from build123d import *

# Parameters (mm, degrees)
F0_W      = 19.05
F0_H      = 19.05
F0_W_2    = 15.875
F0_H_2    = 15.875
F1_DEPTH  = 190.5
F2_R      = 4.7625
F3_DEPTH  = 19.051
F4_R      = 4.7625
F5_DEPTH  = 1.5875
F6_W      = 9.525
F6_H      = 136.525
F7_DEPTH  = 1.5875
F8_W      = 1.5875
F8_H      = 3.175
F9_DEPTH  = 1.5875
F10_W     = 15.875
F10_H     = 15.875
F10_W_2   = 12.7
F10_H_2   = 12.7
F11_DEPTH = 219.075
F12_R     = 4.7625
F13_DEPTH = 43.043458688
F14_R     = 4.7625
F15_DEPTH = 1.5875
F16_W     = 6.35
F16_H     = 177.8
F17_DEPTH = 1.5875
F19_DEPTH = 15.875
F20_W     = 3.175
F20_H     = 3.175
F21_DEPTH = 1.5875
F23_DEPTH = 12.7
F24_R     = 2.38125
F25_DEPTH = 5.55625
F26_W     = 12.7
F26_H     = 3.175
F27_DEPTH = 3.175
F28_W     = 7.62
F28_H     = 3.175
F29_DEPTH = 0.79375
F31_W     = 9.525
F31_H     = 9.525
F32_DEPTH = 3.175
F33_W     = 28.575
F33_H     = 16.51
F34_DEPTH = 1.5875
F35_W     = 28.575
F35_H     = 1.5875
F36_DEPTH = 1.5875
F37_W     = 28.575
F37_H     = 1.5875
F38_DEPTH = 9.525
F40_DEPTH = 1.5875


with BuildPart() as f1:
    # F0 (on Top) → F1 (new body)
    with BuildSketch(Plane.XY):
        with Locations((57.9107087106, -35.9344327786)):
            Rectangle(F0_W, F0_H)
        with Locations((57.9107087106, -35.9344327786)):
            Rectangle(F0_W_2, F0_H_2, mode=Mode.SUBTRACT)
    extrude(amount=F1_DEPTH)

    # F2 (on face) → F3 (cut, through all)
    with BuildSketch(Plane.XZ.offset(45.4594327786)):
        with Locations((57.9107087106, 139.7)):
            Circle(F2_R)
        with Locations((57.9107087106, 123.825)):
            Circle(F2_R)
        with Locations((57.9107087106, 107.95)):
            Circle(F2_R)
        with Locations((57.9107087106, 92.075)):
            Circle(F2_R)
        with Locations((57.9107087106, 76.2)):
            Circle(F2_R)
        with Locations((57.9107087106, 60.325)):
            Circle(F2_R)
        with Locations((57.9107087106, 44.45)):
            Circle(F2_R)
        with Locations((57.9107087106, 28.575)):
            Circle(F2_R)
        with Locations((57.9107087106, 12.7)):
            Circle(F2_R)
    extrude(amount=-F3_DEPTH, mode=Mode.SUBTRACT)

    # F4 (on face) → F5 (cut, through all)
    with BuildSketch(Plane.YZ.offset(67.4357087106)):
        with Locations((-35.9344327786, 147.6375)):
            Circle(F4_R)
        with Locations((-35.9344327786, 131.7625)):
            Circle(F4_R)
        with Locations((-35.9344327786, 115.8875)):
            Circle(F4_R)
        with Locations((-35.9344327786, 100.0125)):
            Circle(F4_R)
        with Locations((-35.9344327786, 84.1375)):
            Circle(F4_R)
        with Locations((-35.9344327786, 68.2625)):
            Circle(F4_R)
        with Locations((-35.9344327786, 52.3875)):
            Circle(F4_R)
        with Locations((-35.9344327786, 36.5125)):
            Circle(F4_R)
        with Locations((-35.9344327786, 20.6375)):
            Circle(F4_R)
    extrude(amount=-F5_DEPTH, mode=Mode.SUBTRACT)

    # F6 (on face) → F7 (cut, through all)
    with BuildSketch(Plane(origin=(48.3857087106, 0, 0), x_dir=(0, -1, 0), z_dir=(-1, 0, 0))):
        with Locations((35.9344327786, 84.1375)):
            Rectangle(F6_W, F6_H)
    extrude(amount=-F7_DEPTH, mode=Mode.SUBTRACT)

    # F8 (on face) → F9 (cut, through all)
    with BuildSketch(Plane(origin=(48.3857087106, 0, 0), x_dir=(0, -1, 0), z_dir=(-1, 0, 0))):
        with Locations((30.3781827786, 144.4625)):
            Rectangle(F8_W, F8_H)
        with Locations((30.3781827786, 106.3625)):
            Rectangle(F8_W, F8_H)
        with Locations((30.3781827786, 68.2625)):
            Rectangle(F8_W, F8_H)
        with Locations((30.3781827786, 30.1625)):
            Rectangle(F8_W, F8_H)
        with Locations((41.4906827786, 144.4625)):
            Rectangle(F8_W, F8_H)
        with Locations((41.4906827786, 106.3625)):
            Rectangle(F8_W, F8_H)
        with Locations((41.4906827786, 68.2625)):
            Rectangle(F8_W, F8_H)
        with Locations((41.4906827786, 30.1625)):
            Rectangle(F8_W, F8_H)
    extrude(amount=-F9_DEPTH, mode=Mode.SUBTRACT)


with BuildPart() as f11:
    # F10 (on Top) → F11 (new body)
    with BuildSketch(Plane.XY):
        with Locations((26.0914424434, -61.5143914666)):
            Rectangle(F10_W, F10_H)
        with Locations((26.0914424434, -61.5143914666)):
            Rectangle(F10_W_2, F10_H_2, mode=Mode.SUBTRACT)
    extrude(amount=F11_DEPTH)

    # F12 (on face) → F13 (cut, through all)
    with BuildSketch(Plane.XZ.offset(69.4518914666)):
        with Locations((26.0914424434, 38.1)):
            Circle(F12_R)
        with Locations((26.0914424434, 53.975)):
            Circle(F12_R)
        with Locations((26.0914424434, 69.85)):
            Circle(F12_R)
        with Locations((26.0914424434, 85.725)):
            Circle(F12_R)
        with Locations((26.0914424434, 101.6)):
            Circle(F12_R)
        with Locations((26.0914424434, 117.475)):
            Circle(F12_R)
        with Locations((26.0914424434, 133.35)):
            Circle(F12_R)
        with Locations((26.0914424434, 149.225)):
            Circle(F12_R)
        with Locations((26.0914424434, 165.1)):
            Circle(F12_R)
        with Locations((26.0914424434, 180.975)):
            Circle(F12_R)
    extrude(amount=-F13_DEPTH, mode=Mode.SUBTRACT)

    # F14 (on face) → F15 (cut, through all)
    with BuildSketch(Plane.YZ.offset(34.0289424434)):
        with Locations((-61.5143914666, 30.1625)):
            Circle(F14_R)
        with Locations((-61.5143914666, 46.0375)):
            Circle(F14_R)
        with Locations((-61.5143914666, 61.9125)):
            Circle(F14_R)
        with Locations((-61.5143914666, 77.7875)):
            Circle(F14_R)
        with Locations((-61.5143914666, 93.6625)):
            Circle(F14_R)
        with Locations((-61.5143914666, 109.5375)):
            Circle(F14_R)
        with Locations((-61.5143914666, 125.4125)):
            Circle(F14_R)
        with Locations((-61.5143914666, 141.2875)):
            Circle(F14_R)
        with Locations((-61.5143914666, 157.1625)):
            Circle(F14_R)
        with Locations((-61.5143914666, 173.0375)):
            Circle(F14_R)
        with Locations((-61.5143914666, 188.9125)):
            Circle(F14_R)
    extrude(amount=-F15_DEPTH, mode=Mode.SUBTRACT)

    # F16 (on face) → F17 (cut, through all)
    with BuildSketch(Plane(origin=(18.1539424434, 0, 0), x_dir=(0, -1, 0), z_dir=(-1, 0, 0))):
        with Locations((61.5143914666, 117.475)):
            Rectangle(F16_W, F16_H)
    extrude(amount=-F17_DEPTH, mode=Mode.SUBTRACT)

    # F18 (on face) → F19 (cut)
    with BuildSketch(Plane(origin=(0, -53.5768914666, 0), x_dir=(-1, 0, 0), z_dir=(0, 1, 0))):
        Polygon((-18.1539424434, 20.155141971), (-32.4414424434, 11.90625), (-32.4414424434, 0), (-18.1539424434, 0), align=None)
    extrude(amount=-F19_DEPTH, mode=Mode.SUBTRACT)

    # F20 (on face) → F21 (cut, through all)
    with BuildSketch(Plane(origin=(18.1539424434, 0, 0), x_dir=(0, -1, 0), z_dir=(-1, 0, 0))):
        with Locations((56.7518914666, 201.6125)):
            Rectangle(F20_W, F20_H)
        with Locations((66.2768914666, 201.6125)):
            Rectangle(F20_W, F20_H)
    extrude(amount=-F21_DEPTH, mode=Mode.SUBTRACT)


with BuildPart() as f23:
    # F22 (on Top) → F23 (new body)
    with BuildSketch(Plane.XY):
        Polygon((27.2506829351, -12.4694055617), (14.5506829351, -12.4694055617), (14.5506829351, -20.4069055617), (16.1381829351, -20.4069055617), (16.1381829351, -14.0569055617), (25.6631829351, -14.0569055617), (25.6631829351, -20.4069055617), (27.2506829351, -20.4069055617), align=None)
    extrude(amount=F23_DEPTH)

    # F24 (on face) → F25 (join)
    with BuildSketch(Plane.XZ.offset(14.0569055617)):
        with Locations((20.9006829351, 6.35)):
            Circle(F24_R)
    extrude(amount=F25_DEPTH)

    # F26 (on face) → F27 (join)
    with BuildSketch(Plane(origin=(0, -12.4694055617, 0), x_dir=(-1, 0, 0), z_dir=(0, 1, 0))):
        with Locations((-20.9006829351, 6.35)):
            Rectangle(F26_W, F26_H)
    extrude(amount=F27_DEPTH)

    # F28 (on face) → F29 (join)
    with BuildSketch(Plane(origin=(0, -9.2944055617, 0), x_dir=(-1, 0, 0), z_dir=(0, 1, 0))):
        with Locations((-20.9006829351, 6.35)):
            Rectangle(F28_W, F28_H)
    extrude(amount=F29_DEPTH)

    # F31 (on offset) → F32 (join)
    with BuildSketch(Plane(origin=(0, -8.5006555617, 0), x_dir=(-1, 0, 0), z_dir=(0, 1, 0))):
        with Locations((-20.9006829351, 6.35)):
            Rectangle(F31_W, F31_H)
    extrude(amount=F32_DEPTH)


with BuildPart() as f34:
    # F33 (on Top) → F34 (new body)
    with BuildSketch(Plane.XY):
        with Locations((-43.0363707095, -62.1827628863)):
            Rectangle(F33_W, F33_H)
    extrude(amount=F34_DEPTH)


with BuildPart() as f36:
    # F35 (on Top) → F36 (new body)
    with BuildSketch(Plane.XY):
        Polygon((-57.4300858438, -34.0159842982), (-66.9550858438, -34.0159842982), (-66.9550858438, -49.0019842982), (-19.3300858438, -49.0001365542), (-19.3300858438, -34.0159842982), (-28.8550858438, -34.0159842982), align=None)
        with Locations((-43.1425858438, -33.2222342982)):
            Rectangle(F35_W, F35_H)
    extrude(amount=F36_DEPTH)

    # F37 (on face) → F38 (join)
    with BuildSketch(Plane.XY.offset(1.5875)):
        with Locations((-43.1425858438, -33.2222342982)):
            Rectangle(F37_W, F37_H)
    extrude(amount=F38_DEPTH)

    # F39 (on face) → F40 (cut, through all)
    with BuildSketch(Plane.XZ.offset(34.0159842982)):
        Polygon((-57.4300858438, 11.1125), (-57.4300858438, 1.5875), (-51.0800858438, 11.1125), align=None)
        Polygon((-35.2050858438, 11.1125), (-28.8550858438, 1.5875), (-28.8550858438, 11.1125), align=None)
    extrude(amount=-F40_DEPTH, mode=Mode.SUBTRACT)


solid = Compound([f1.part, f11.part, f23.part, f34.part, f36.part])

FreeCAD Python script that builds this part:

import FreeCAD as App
import Part
import Sketcher
Q = App.Units.Quantity


def add_polygon(sketch, points):
    """Adds a closed chain of lines whose ends are joined by coincident constraints."""
    first, n = sketch.GeometryCount, len(points)
    for a, b in zip(points, points[1:] + points[:1]):
        sketch.addGeometry(Part.LineSegment(App.Vector(*a, 0), App.Vector(*b, 0)), False)
    for i in range(n):
        sketch.addConstraint(Sketcher.Constraint("Coincident", first + i, 2, first + (i + 1) % n, 1))

doc = App.newDocument("Part")
body = doc.addObject("PartDesign::Body", "Body")

sketch1 = body.newObject("Sketcher::SketchObject", "Sketch")
sketch1.AttachmentSupport = (doc.getObject("XY_Plane"), [""])
sketch1.MapMode = "FlatFace"
add_polygon(sketch1, [(48, -26), (48, -45), (67, -45), (67, -26)])
add_polygon(sketch1, [(66, -44), (50, -44), (50, -28), (66, -28)])
sketch1.addConstraint([
    Sketcher.Constraint("Vertical", 0),
    Sketcher.Constraint("Horizontal", 1),
    Sketcher.Constraint("Vertical", 2),
    Sketcher.Constraint("Horizontal", 3),
    Sketcher.Constraint("Horizontal", 4),
    Sketcher.Constraint("Vertical", 5),
    Sketcher.Constraint("Horizontal", 6),
    Sketcher.Constraint("Vertical", 7),
    Sketcher.Constraint("Equal", 3, 0),
    Sketcher.Constraint("Equal", 6, 5),
    Sketcher.Constraint("DistanceX", 1, 1, 1, 2, Q("0.75 in")),
    Sketcher.Constraint("DistanceX", 4, 2, 4, 1, Q("0.625 in")),
    Sketcher.Constraint("DistanceX", 0, 2, 4, 2, Q("0.0625 in")),
    Sketcher.Constraint("DistanceY", 0, 2, 4, 2, Q("0.0625 in")),
    Sketcher.Constraint("DistanceX", -1, 1, 0, 2, 48.385709),
    Sketcher.Constraint("DistanceY", 0, 2, -1, 1, 45.459433),
])
pad1 = body.newObject("PartDesign::Pad", "Pad")
pad1.Profile = sketch1
pad1.Length = Q("7.5 in")

sketch2 = body.newObject("Sketcher::SketchObject", "Sketch001")
sketch2.AttachmentSupport = (doc.getObject("XZ_Plane"), [""])
sketch2.MapMode = "FlatFace"
sketch2.AttachmentOffset = App.Placement(App.Vector(0, 0, 45.459433), App.Rotation())
sketch2.addGeometry([
    Part.Circle(App.Vector(57.9, 139.7, 0), App.Vector(0, 0, 1), 4.8),
    Part.Circle(App.Vector(57.9, 123.8, 0), App.Vector(0, 0, 1), 4.8),
    Part.Circle(App.Vector(57.9, 108, 0), App.Vector(0, 0, 1), 4.8),
    Part.Circle(App.Vector(57.9, 92.1, 0), App.Vector(0, 0, 1), 4.8),
    Part.Circle(App.Vector(57.9, 76.2, 0), App.Vector(0, 0, 1), 4.8),
    Part.Circle(App.Vector(57.9, 60.3, 0), App.Vector(0, 0, 1), 4.8),
    Part.Circle(App.Vector(57.9, 44.5, 0), App.Vector(0, 0, 1), 4.8),
    Part.Circle(App.Vector(57.9, 28.6, 0), App.Vector(0, 0, 1), 4.8),
    Part.Circle(App.Vector(57.9, 12.7, 0), App.Vector(0, 0, 1), 4.8),
], False)
sketch2.addConstraint([
    Sketcher.Constraint("Equal", 0, 1),
    Sketcher.Constraint("Equal", 1, 2),
    Sketcher.Constraint("Equal", 2, 3),
    Sketcher.Constraint("Equal", 3, 4),
    Sketcher.Constraint("Equal", 4, 5),
    Sketcher.Constraint("Equal", 5, 6),
    Sketcher.Constraint("Equal", 6, 7),
    Sketcher.Constraint("Equal", 7, 8),
    Sketcher.Constraint("Vertical", 0, 3, 1, 3),
    Sketcher.Constraint("Vertical", 1, 3, 2, 3),
    Sketcher.Constraint("Vertical", 2, 3, 3, 3),
    Sketcher.Constraint("Vertical", 3, 3, 4, 3),
    Sketcher.Constraint("Vertical", 4, 3, 5, 3),
    Sketcher.Constraint("Vertical", 5, 3, 6, 3),
    Sketcher.Constraint("Vertical", 6, 3, 7, 3),
    Sketcher.Constraint("Vertical", 7, 3, 8, 3),
    Sketcher.Constraint("Diameter", 0, Q("0.375 in")),
    Sketcher.Constraint("DistanceY", -1, 1, 4, 3, Q("3 in")),
    Sketcher.Constraint("DistanceY", -1, 1, 0, 3, Q("5.5 in")),
    Sketcher.Constraint("DistanceY", -1, 1, 8, 3, Q("0.5 in")),
    Sketcher.Constraint("DistanceY", 5, 3, 1, 3, Q("2.5 in")),
    Sketcher.Constraint("DistanceY", 6, 3, 2, 3, Q("2.5 in")),
    Sketcher.Constraint("DistanceY", 7, 3, 3, 3, Q("2.5 in")),
    Sketcher.Constraint("DistanceY", -1, 1, 2, 3, Q("4.25 in")),
    Sketcher.Constraint("DistanceY", 3, 3, 1, 3, Q("1.25 in")),
    Sketcher.Constraint("DistanceY", -1, 1, 1, 3, Q("4.875 in")),
    Sketcher.Constraint("DistanceX", -1, 1, 0, 3, 57.910709),
])
pocket1 = body.newObject("PartDesign::Pocket", "Pocket")
pocket1.Profile = sketch2
pocket1.Type = "ThroughAll"

sketch3 = body.newObject("Sketcher::SketchObject", "Sketch002")
sketch3.AttachmentSupport = (doc.getObject("YZ_Plane"), [""])
sketch3.MapMode = "FlatFace"
sketch3.AttachmentOffset = App.Placement(App.Vector(0, 0, 67.435709), App.Rotation())
sketch3.addGeometry([
    Part.Circle(App.Vector(-35.9, 147.6, 0), App.Vector(0, 0, 1), 4.8),
    Part.Circle(App.Vector(-35.9, 131.8, 0), App.Vector(0, 0, 1), 4.8),
    Part.Circle(App.Vector(-35.9, 115.9, 0), App.Vector(0, 0, 1), 4.8),
    Part.Circle(App.Vector(-35.9, 100, 0), App.Vector(0, 0, 1), 4.8),
    Part.Circle(App.Vector(-35.9, 84.1, 0), App.Vector(0, 0, 1), 4.8),
    Part.Circle(App.Vector(-35.9, 68.3, 0), App.Vector(0, 0, 1), 4.8),
    Part.Circle(App.Vector(-35.9, 52.4, 0), App.Vector(0, 0, 1), 4.8),
    Part.Circle(App.Vector(-35.9, 36.5, 0), App.Vector(0, 0, 1), 4.8),
    Part.Circle(App.Vector(-35.9, 20.6, 0), App.Vector(0, 0, 1), 4.8),
], False)
sketch3.addConstraint([
    Sketcher.Constraint("Equal", 0, 1),
    Sketcher.Constraint("Equal", 1, 2),
    Sketcher.Constraint("Equal", 2, 3),
    Sketcher.Constraint("Equal", 3, 4),
    Sketcher.Constraint("Equal", 4, 5),
    Sketcher.Constraint("Equal", 5, 6),
    Sketcher.Constraint("Equal", 6, 7),
    Sketcher.Constraint("Equal", 7, 8),
    Sketcher.Constraint("Vertical", 0, 3, 1, 3),
    Sketcher.Constraint("Vertical", 1, 3, 2, 3),
    Sketcher.Constraint("Vertical", 2, 3, 3, 3),
    Sketcher.Constraint("Vertical", 3, 3, 4, 3),
    Sketcher.Constraint("Vertical", 4, 3, 5, 3),
    Sketcher.Constraint("Vertical", 5, 3, 6, 3),
    Sketcher.Constraint("Vertical", 6, 3, 7, 3),
    Sketcher.Constraint("Vertical", 7, 3, 8, 3),
    Sketcher.Constraint("Diameter", 0, Q("0.375 in")),
    Sketcher.Constraint("DistanceY", 4, 3, 0, 3, Q("2.5 in")),
    Sketcher.Constraint("DistanceY", 5, 3, 1, 3, Q("2.5 in")),
    Sketcher.Constraint("DistanceY", 6, 3, 2, 3, Q("2.5 in")),
    Sketcher.Constraint("DistanceY", 7, 3, 3, 3, Q("2.5 in")),
    Sketcher.Constraint("DistanceY", 8, 3, 4, 3, Q("2.5 in")),
    Sketcher.Constraint("DistanceY", 2, 3, 0, 3, Q("1.25 in")),
    Sketcher.Constraint("DistanceY", 3, 3, 1, 3, Q("1.25 in")),
    Sketcher.Constraint("DistanceY", -1, 1, 0, 3, Q("5.8125 in")),
    Sketcher.Constraint("DistanceY", -1, 1, 1, 3, Q("5.1875 in")),
    Sketcher.Constraint("DistanceX", 0, 3, -1, 1, 35.934433),
])
pocket2 = body.newObject("PartDesign::Pocket", "Pocket001")
pocket2.Profile = sketch3
pocket2.Length = Q("0.0625 in")

sketch4 = body.newObject("Sketcher::SketchObject", "Sketch003")
sketch4.AttachmentSupport = (doc.getObject("YZ_Plane"), [""])
sketch4.MapMode = "FlatFace"
sketch4.AttachmentOffset = App.Placement(App.Vector(0, 0, 48.385709), App.Rotation())
add_polygon(sketch4, [(-31, 152), (-31, 16), (-41, 16), (-41, 152)])
sketch4.addConstraint([
    Sketcher.Constraint("Vertical", 0),
    Sketcher.Constraint("Horizontal", 1),
    Sketcher.Constraint("Vertical", 2),
    Sketcher.Constraint("Horizontal", 3),
    Sketcher.Constraint("DistanceY", -1, 1, 2, 2, Q("6 in")),
    Sketcher.Constraint("DistanceX", 1, 2, 1, 1, Q("0.375 in")),
    Sketcher.Constraint("DistanceY", 0, 2, 0, 1, Q("5.375 in")),
    Sketcher.Constraint("DistanceX", 0, 2, -1, 1, 31.171933),
])
pocket3 = body.newObject("PartDesign::Pocket", "Pocket002")
pocket3.Profile = sketch4
pocket3.Length = Q("0.0625 in")
pocket3.Reversed = True

sketch5 = body.newObject("Sketcher::SketchObject", "Sketch004")
sketch5.AttachmentSupport = (doc.getObject("YZ_Plane"), [""])
sketch5.MapMode = "FlatFace"
sketch5.AttachmentOffset = App.Placement(App.Vector(0, 0, 48.385709), App.Rotation())
add_polygon(sketch5, [(-29.6, 146.1), (-29.6, 142.9), (-31.2, 142.9), (-31.2, 146.1)])
add_polygon(sketch5, [(-29.6, 108), (-29.6, 104.8), (-31.2, 104.8), (-31.2, 108)])
add_polygon(sketch5, [(-29.6, 69.8), (-29.6, 66.7), (-31.2, 66.7), (-31.2, 69.8)])
add_polygon(sketch5, [(-29.6, 31.8), (-29.6, 28.6), (-31.2, 28.6), (-31.2, 31.8)])
add_polygon(sketch5, [(-40.7, 146.1), (-40.7, 142.9), (-42.3, 142.9), (-42.3, 146.1)])
add_polygon(sketch5, [(-40.7, 108), (-40.7, 104.8), (-42.3, 104.8), (-42.3, 108)])
add_polygon(sketch5, [(-40.7, 69.8), (-40.7, 66.7), (-42.3, 66.7), (-42.3, 69.8)])
add_polygon(sketch5, [(-40.7, 31.8), (-40.7, 28.6), (-42.3, 28.6), (-42.3, 31.8)])
sketch5.addConstraint([
    Sketcher.Constraint("Vertical", 0),
    Sketcher.Constraint("Horizontal", 1),
    Sketcher.Constraint("Vertical", 2),
    Sketcher.Constraint("Horizontal", 3),
    Sketcher.Constraint("Vertical", 4),
    Sketcher.Constraint("Horizontal", 5),
    Sketcher.Constraint("Vertical", 6),
    Sketcher.Constraint("Horizontal", 7),
    Sketcher.Constraint("Vertical", 8),
    Sketcher.Constraint("Horizontal", 9),
    Sketcher.Constraint("Vertical", 10),
    Sketcher.Constraint("Horizontal", 11),
    Sketcher.Constraint("Vertical", 12),
    Sketcher.Constraint("Horizontal", 13),
    Sketcher.Constraint("Vertical", 14),
    Sketcher.Constraint("Horizontal", 15),
    Sketcher.Constraint("Vertical", 16),
    Sketcher.Constraint("Horizontal", 17),
    Sketcher.Constraint("Vertical", 18),
    Sketcher.Constraint("Horizontal", 19),
    Sketcher.Constraint("Vertical", 20),
    Sketcher.Constraint("Horizontal", 21),
    Sketcher.Constraint("Vertical", 22),
    Sketcher.Constraint("Horizontal", 23),
    Sketcher.Constraint("Vertical", 24),
    Sketcher.Constraint("Horizontal", 25),
    Sketcher.Constraint("Vertical", 26),
    Sketcher.Constraint("Horizontal", 27),
    Sketcher.Constraint("Vertical", 28),
    Sketcher.Constraint("Horizontal", 29),
    Sketcher.Constraint("Vertical", 30),
    Sketcher.Constraint("Horizontal", 31),
    Sketcher.Constraint("Horizontal", 1, 2, 16, 2),
    Sketcher.Constraint("Horizontal", 3, 2, 18, 2),
    Sketcher.Constraint("Horizontal", 5, 2, 20, 2),
    Sketcher.Constraint("Horizontal", 7, 2, 22, 2),
    Sketcher.Constraint("Horizontal", 9, 2, 24, 2),
    Sketcher.Constraint("Horizontal", 11, 2, 26, 2),
    Sketcher.Constraint("Horizontal", 13, 2, 28, 2),
    Sketcher.Constraint("Horizontal", 15, 2, 30, 2),
    Sketcher.Constraint("Vertical", 3, 2, 4, 2),
    Sketcher.Constraint("Vertical", 2, 2, 5, 2),
    Sketcher.Constraint("Vertical", 7, 2, 8, 2),
    Sketcher.Constraint("Vertical", 6, 2, 9, 2),
    Sketcher.Constraint("Vertical", 11, 2, 12, 2),
    Sketcher.Constraint("Vertical", 10, 2, 13, 2),
    Sketcher.Constraint("Vertical", 19, 2, 20, 2),
    Sketcher.Constraint("Vertical", 18, 2, 21, 2),
    Sketcher.Constraint("Vertical", 23, 2, 24, 2),
    Sketcher.Constraint("Vertical", 22, 2, 25, 2),
    Sketcher.Constraint("Vertical", 27, 2, 28, 2),
    Sketcher.Constraint("Vertical", 26, 2, 29, 2),
    Sketcher.Constraint("Equal", 15, 17),
    Sketcher.Constraint("Equal", 2, 4),
    Sketcher.Constraint("Equal", 6, 8),
    Sketcher.Constraint("Equal", 10, 12),
    Sketcher.Constraint("DistanceY", 8, 2, 0, 2, Q("3 in")),
    Sketcher.Constraint("DistanceY", 12, 2, 4, 2, Q("3 in")),
    Sketcher.Constraint("DistanceY", 4, 2, 0, 2, Q("1.5 in")),
    Sketcher.Constraint("DistanceX", 17, 2, 0, 2, Q("0.5 in")),
    Sketcher.Constraint("DistanceX", 1, 2, 1, 1, Q("0.0625 in")),
    Sketcher.Constraint("DistanceY", 0, 2, 0, 1, Q("0.125 in")),
    Sketcher.Constraint("DistanceY", -1, 1, 2, 2, Q("5.75 in")),
    Sketcher.Constraint("DistanceX", 0, 2, -1, 1, 29.584433),
])
pocket4 = body.newObject("PartDesign::Pocket", "Pocket003")
pocket4.Profile = sketch5
pocket4.Length = Q("0.0625 in")
pocket4.Reversed = True
body2 = doc.addObject("PartDesign::Body", "Body001")

sketch6 = body2.newObject("Sketcher::SketchObject", "Sketch005")
sketch6.AttachmentSupport = (doc.getObject("XY_Plane001"), [""])
sketch6.MapMode = "FlatFace"
add_polygon(sketch6, [(18, -54), (18, -69), (34, -69), (34, -54)])
add_polygon(sketch6, [(32, -68), (20, -68), (20, -55), (32, -55)])
sketch6.addConstraint([
    Sketcher.Constraint("Vertical", 0),
    Sketcher.Constraint("Horizontal", 1),
    Sketcher.Constraint("Vertical", 2),
    Sketcher.Constraint("Horizontal", 3),
    Sketcher.Constraint("Horizontal", 4),
    Sketcher.Constraint("Vertical", 5),
    Sketcher.Constraint("Horizontal", 6),
    Sketcher.Constraint("Vertical", 7),
    Sketcher.Constraint("Equal", 3, 0),
    Sketcher.Constraint("Equal", 6, 5),
    Sketcher.Constraint("DistanceX", 4, 2, 4, 1, Q("0.5 in")),
    Sketcher.Constraint("DistanceX", 1, 1, 1, 2, Q("0.625 in")),
    Sketcher.Constraint("DistanceX", 0, 2, 4, 2, Q("0.0625 in")),
    Sketcher.Constraint("DistanceY", 0, 2, 4, 2, Q("0.0625 in")),
    Sketcher.Constraint("DistanceY", 0, 2, -1, 1, 69.451891),
    Sketcher.Constraint("DistanceX", -1, 1, 0, 2, 18.153942),
])
pad2 = body2.newObject("PartDesign::Pad", "Pad001")
pad2.Profile = sketch6
pad2.Length = Q("8.625 in")

sketch7 = body2.newObject("Sketcher::SketchObject", "Sketch006")
sketch7.AttachmentSupport = (doc.getObject("XZ_Plane001"), [""])
sketch7.MapMode = "FlatFace"
sketch7.AttachmentOffset = App.Placement(App.Vector(0, 0, 69.451891), App.Rotation())
sketch7.addGeometry([
    Part.Circle(App.Vector(26.1, 38.1, 0), App.Vector(0, 0, 1), 4.8),
    Part.Circle(App.Vector(26.1, 54, 0), App.Vector(0, 0, 1), 4.8),
    Part.Circle(App.Vector(26.1, 69.8, 0), App.Vector(0, 0, 1), 4.8),
    Part.Circle(App.Vector(26.1, 85.7, 0), App.Vector(0, 0, 1), 4.8),
    Part.Circle(App.Vector(26.1, 101.6, 0), App.Vector(0, 0, 1), 4.8),
    Part.Circle(App.Vector(26.1, 117.5, 0), App.Vector(0, 0, 1), 4.8),
    Part.Circle(App.Vector(26.1, 133.3, 0), App.Vector(0, 0, 1), 4.8),
    Part.Circle(App.Vector(26.1, 149.2, 0), App.Vector(0, 0, 1), 4.8),
    Part.Circle(App.Vector(26.1, 165.1, 0), App.Vector(0, 0, 1), 4.8),
    Part.Circle(App.Vector(26.1, 181, 0), App.Vector(0, 0, 1), 4.8),
], False)
sketch7.addConstraint([
    Sketcher.Constraint("Equal", 0, 1),
    Sketcher.Constraint("Equal", 1, 2),
    Sketcher.Constraint("Equal", 2, 3),
    Sketcher.Constraint("Equal", 3, 4),
    Sketcher.Constraint("Equal", 4, 5),
    Sketcher.Constraint("Equal", 5, 6),
    Sketcher.Constraint("Equal", 6, 7),
    Sketcher.Constraint("Equal", 7, 8),
    Sketcher.Constraint("Equal", 8, 9),
    Sketcher.Constraint("Vertical", 0, 3, 1, 3),
    Sketcher.Constraint("Vertical", 1, 3, 2, 3),
    Sketcher.Constraint("Vertical", 2, 3, 3, 3),
    Sketcher.Constraint("Vertical", 3, 3, 4, 3),
    Sketcher.Constraint("Vertical", 4, 3, 5, 3),
    Sketcher.Constraint("Vertical", 5, 3, 6, 3),
    Sketcher.Constraint("Vertical", 6, 3, 7, 3),
    Sketcher.Constraint("Vertical", 7, 3, 8, 3),
    Sketcher.Constraint("Vertical", 8, 3, 9, 3),
    Sketcher.Constraint("Diameter", 0, Q("0.375 in")),
    Sketcher.Constraint("DistanceY", -1, 1, 4, 3, Q("4 in")),
    Sketcher.Constraint("DistanceY", -1, 1, 0, 3, Q("1.5 in")),
    Sketcher.Constraint("DistanceY", -1, 1, 8, 3, Q("6.5 in")),
    Sketcher.Constraint("DistanceY", 1, 3, 5, 3, Q("2.5 in")),
    Sketcher.Constraint("DistanceY", 2, 3, 6, 3, Q("2.5 in")),
    Sketcher.Constraint("DistanceY", 3, 3, 7, 3, Q("2.5 in")),
    Sketcher.Constraint("DistanceY", 5, 3, 9, 3, Q("2.5 in")),
    Sketcher.Constraint("DistanceY", -1, 1, 2, 3, Q("2.75 in")),
    Sketcher.Constraint("DistanceY", 1, 3, 3, 3, Q("1.25 in")),
    Sketcher.Constraint("DistanceY", -1, 1, 1, 3, Q("2.125 in")),
    Sketcher.Constraint("DistanceX", -1, 1, 0, 3, 26.091442),
])
pocket5 = body2.newObject("PartDesign::Pocket", "Pocket004")
pocket5.Profile = sketch7
pocket5.Type = "ThroughAll"

sketch8 = body2.newObject("Sketcher::SketchObject", "Sketch007")
sketch8.AttachmentSupport = (doc.getObject("YZ_Plane001"), [""])
sketch8.MapMode = "FlatFace"
sketch8.AttachmentOffset = App.Placement(App.Vector(0, 0, 34.028942), App.Rotation())
sketch8.addGeometry([
    Part.Circle(App.Vector(-61.5, 30.2, 0), App.Vector(0, 0, 1), 4.8),
    Part.Circle(App.Vector(-61.5, 46, 0), App.Vector(0, 0, 1), 4.8),
    Part.Circle(App.Vector(-61.5, 61.9, 0), App.Vector(0, 0, 1), 4.8),
    Part.Circle(App.Vector(-61.5, 77.8, 0), App.Vector(0, 0, 1), 4.8),
    Part.Circle(App.Vector(-61.5, 93.7, 0), App.Vector(0, 0, 1), 4.8),
    Part.Circle(App.Vector(-61.5, 109.5, 0), App.Vector(0, 0, 1), 4.8),
    Part.Circle(App.Vector(-61.5, 125.4, 0), App.Vector(0, 0, 1), 4.8),
    Part.Circle(App.Vector(-61.5, 141.3, 0), App.Vector(0, 0, 1), 4.8),
    Part.Circle(App.Vector(-61.5, 157.2, 0), App.Vector(0, 0, 1), 4.8),
    Part.Circle(App.Vector(-61.5, 173, 0), App.Vector(0, 0, 1), 4.8),
    Part.Circle(App.Vector(-61.5, 188.9, 0), App.Vector(0, 0, 1), 4.8),
], False)
sketch8.addConstraint([
    Sketcher.Constraint("Equal", 0, 1),
    Sketcher.Constraint("Equal", 1, 2),
    Sketcher.Constraint("Equal", 2, 3),
    Sketcher.Constraint("Equal", 3, 4),
    Sketcher.Constraint("Equal", 4, 5),
    Sketcher.Constraint("Equal", 5, 6),
    Sketcher.Constraint("Equal", 6, 7),
    Sketcher.Constraint("Equal", 7, 8),
    Sketcher.Constraint("Equal", 8, 9),
    Sketcher.Constraint("Equal", 9, 10),
    Sketcher.Constraint("Vertical", 0, 3, 1, 3),
    Sketcher.Constraint("Vertical", 1, 3, 2, 3),
    Sketcher.Constraint("Vertical", 2, 3, 3, 3),
    Sketcher.Constraint("Vertical", 3, 3, 4, 3),
    Sketcher.Constraint("Vertical", 4, 3, 5, 3),
    Sketcher.Constraint("Vertical", 5, 3, 6, 3),
    Sketcher.Constraint("Vertical", 6, 3, 7, 3),
    Sketcher.Constraint("Vertical", 7, 3, 8, 3),
    Sketcher.Constraint("Vertical", 8, 3, 9, 3),
    Sketcher.Constraint("Vertical", 9, 3, 10, 3),
    Sketcher.Constraint("Diameter", 0, Q("0.375 in")),
    Sketcher.Constraint("DistanceY", 0, 3, 4, 3, Q("2.5 in")),
    Sketcher.Constraint("DistanceY", 1, 3, 5, 3, Q("2.5 in")),
    Sketcher.Constraint("DistanceY", 2, 3, 6, 3, Q("2.5 in")),
    Sketcher.Constraint("DistanceY", 3, 3, 7, 3, Q("2.5 in")),
    Sketcher.Constraint("DistanceY", 4, 3, 8, 3, Q("2.5 in")),
    Sketcher.Constraint("DistanceY", 5, 3, 9, 3, Q("2.5 in")),
    Sketcher.Constraint("DistanceY", 6, 3, 10, 3, Q("2.5 in")),
    Sketcher.Constraint("DistanceY", 0, 3, 2, 3, Q("1.25 in")),
    Sketcher.Constraint("DistanceY", 1, 3, 3, 3, Q("1.25 in")),
    Sketcher.Constraint("DistanceY", -1, 1, 0, 3, Q("1.1875 in")),
    Sketcher.Constraint("DistanceY", -1, 1, 1, 3, Q("1.8125 in")),
    Sketcher.Constraint("DistanceX", 0, 3, -1, 1, 61.514391),
])
pocket6 = body2.newObject("PartDesign::Pocket", "Pocket005")
pocket6.Profile = sketch8
pocket6.Length = Q("0.0625 in")

sketch9 = body2.newObject("Sketcher::SketchObject", "Sketch008")
sketch9.AttachmentSupport = (doc.getObject("YZ_Plane001"), [""])
sketch9.MapMode = "FlatFace"
sketch9.AttachmentOffset = App.Placement(App.Vector(0, 0, 18.153942), App.Rotation())
add_polygon(sketch9, [(-58, 206), (-58, 29), (-65, 29), (-65, 206)])
sketch9.addConstraint([
    Sketcher.Constraint("Vertical", 0),
    Sketcher.Constraint("Horizontal", 1),
    Sketcher.Constraint("Vertical", 2),
    Sketcher.Constraint("Horizontal", 3),
    Sketcher.Constraint("DistanceY", 0, 2, 0, 1, Q("7 in")),
    Sketcher.Constraint("DistanceX", 1, 2, 1, 1, Q("0.25 in")),
    Sketcher.Constraint("DistanceY", -1, 1, 0, 2, Q("1.125 in")),
    Sketcher.Constraint("DistanceX", 0, 2, -1, 1, 58.339391),
])
pocket7 = body2.newObject("PartDesign::Pocket", "Pocket006")
pocket7.Profile = sketch9
pocket7.Length = Q("0.0625 in")
pocket7.Reversed = True

sketch10 = body2.newObject("Sketcher::SketchObject", "Sketch009")
sketch10.AttachmentSupport = (doc.getObject("XZ_Plane001"), [""])
sketch10.MapMode = "FlatFace"
sketch10.AttachmentOffset = App.Placement(App.Vector(0, 0, 53.576891), App.Rotation())
add_polygon(sketch10, [(18, 20), (32, 12), (32, 0), (18, 0)])
sketch10.addConstraint([
    Sketcher.Constraint("Vertical", 1),
    Sketcher.Constraint("Horizontal", 2),
    Sketcher.Constraint("Vertical", 3),
    Sketcher.Constraint("PointOnObject", 1, 2, -1),
    Sketcher.Constraint("Angle", 0, Q("-30 deg")),
    Sketcher.Constraint("DistanceX", 2, 2, 2, 1, Q("0.5625 in")),
    Sketcher.Constraint("DistanceY", 1, 2, 1, 1, Q("0.46875 in")),
    Sketcher.Constraint("DistanceX", -1, 1, 0, 2, 32.441442),
])
pocket8 = body2.newObject("PartDesign::Pocket", "Pocket007")
pocket8.Profile = sketch10
pocket8.Length = Q("0.625 in")
pocket8.Reversed = True

sketch11 = body2.newObject("Sketcher::SketchObject", "Sketch010")
sketch11.AttachmentSupport = (doc.getObject("YZ_Plane001"), [""])
sketch11.MapMode = "FlatFace"
sketch11.AttachmentOffset = App.Placement(App.Vector(0, 0, 18.153942), App.Rotation())
add_polygon(sketch11, [(-55.2, 203.2), (-55.2, 200), (-58.3, 200), (-58.3, 203.2)])
add_polygon(sketch11, [(-64.7, 203.2), (-64.7, 200), (-67.9, 200), (-67.9, 203.2)])
sketch11.addConstraint([
    Sketcher.Constraint("Vertical", 0),
    Sketcher.Constraint("Horizontal", 1),
    Sketcher.Constraint("Vertical", 2),
    Sketcher.Constraint("Horizontal", 3),
    Sketcher.Constraint("Vertical", 4),
    Sketcher.Constraint("Horizontal", 5),
    Sketcher.Constraint("Vertical", 6),
    Sketcher.Constraint("Horizontal", 7),
    Sketcher.Constraint("Horizontal", 1, 2, 4, 2),
    Sketcher.Constraint("Horizontal", 3, 2, 6, 2),
    Sketcher.Constraint("Equal", 3, 5),
    Sketcher.Constraint("Equal", 7, 0),
    Sketcher.Constraint("DistanceY", -1, 1, 2, 2, Q("8 in")),
    Sketcher.Constraint("DistanceX", 5, 2, 0, 2, Q("0.5 in")),
    Sketcher.Constraint("DistanceX", 1, 2, 1, 1, Q("0.125 in")),
    Sketcher.Constraint("DistanceX", 0, 2, -1, 1, 55.164391),
])
pocket9 = body2.newObject("PartDesign::Pocket", "Pocket008")
pocket9.Profile = sketch11
pocket9.Length = Q("0.0625 in")
pocket9.Reversed = True
body3 = doc.addObject("PartDesign::Body", "Body002")

sketch12 = body3.newObject("Sketcher::SketchObject", "Sketch011")
sketch12.AttachmentSupport = (doc.getObject("XY_Plane002"), [""])
sketch12.MapMode = "FlatFace"
add_polygon(sketch12, [(27.3, -12.5), (14.6, -12.5), (14.6, -20.4), (16.1, -20.4), (16.1, -14.1), (25.7, -14.1), (25.7, -20.4), (27.3, -20.4)])
sketch12.addConstraint([
    Sketcher.Constraint("Horizontal", 0),
    Sketcher.Constraint("Vertical", 1),
    Sketcher.Constraint("Horizontal", 2),
    Sketcher.Constraint("Vertical", 3),
    Sketcher.Constraint("Horizontal", 4),
    Sketcher.Constraint("Vertical", 5),
    Sketcher.Constraint("Horizontal", 6),
    Sketcher.Constraint("Vertical", 7),
    Sketcher.Constraint("Horizontal", 2, 2, 5, 2),
    Sketcher.Constraint("Equal", 2, 6),
    Sketcher.Constraint("DistanceX", 0, 2, 0, 1, Q("0.5 in")),
    Sketcher.Constraint("DistanceY", 3, 1, 3, 2, Q("0.25 in")),
    Sketcher.Constraint("DistanceX", 2, 1, 2, 2, Q("0.0625 in")),
    Sketcher.Constraint("DistanceY", 1, 2, 1, 1, Q("0.3125 in")),
    Sketcher.Constraint("DistanceX", -1, 1, 0, 2, 14.550683),
    Sketcher.Constraint("DistanceY", 0, 2, -1, 1, 12.469406),
])
pad3 = body3.newObject("PartDesign::Pad", "Pad002")
pad3.Profile = sketch12
pad3.Length = Q("0.5 in")

sketch13 = body3.newObject("Sketcher::SketchObject", "Sketch012")
sketch13.AttachmentSupport = (doc.getObject("XZ_Plane002"), [""])
sketch13.MapMode = "FlatFace"
sketch13.AttachmentOffset = App.Placement(App.Vector(0, 0, 14.056906), App.Rotation())
sketch13.addGeometry(Part.Circle(App.Vector(20.9, 6.3, 0), App.Vector(0, 0, 1), 2.4), False)
sketch13.addConstraint([
    Sketcher.Constraint("Diameter", 0, Q("0.1875 in")),
    Sketcher.Constraint("DistanceY", -1, 1, 0, 3, Q("0.25 in")),
    Sketcher.Constraint("DistanceX", -1, 1, 0, 3, 20.900683),
])
pad4 = body3.newObject("PartDesign::Pad", "Pad003")
pad4.Profile = sketch13
pad4.Length = Q("0.21875 in")

sketch14 = body3.newObject("Sketcher::SketchObject", "Sketch013")
sketch14.AttachmentSupport = (doc.getObject("XZ_Plane002"), [""])
sketch14.MapMode = "FlatFace"
sketch14.AttachmentOffset = App.Placement(App.Vector(0, 0, 12.469406), App.Rotation())
add_polygon(sketch14, [(27.3, 7.9), (27.3, 4.8), (14.6, 4.8), (14.6, 7.9)])
sketch14.addConstraint([
    Sketcher.Constraint("Vertical", 0),
    Sketcher.Constraint("Horizontal", 1),
    Sketcher.Constraint("Vertical", 2),
    Sketcher.Constraint("Horizontal", 3),
    Sketcher.Constraint("DistanceX", 1, 2, 1, 1, Q("0.5 in")),
    Sketcher.Constraint("DistanceY", 0, 2, 0, 1, Q("0.125 in")),
    Sketcher.Constraint("DistanceY", -1, 1, 0, 2, Q("0.1875 in")),
    Sketcher.Constraint("DistanceX", -1, 1, 0, 2, 27.250683),
])
pad5 = body3.newObject("PartDesign::Pad", "Pad004")
pad5.Profile = sketch14
pad5.Length = Q("0.125 in")
pad5.Reversed = True

sketch15 = body3.newObject("Sketcher::SketchObject", "Sketch014")
sketch15.AttachmentSupport = (doc.getObject("XZ_Plane002"), [""])
sketch15.MapMode = "FlatFace"
sketch15.AttachmentOffset = App.Placement(App.Vector(0, 0, 9.294406), App.Rotation())
add_polygon(sketch15, [(24.7, 7.9), (24.7, 4.8), (17.1, 4.8), (17.1, 7.9)])
sketch15.addConstraint([
    Sketcher.Constraint("Vertical", 0),
    Sketcher.Constraint("Horizontal", 1),
    Sketcher.Constraint("Vertical", 2),
    Sketcher.Constraint("Horizontal", 3),
    Sketcher.Constraint("DistanceX", 1, 2, 1, 1, Q("0.3 in")),
    Sketcher.Constraint("DistanceY", 0, 2, 0, 1, Q("0.125 in")),
    Sketcher.Constraint("DistanceY", -1, 1, 0, 2, Q("0.1875 in")),
    Sketcher.Constraint("DistanceX", -1, 1, 0, 2, 24.710683),
])
pad6 = body3.newObject("PartDesign::Pad", "Pad005")
pad6.Profile = sketch15
pad6.Length = Q("0.03125 in")
pad6.Reversed = True

sketch16 = body3.newObject("Sketcher::SketchObject", "Sketch015")
sketch16.AttachmentSupport = (doc.getObject("XZ_Plane002"), [""])
sketch16.MapMode = "FlatFace"
sketch16.AttachmentOffset = App.Placement(App.Vector(0, 0, 8.500656), App.Rotation())
add_polygon(sketch16, [(26, 11), (26, 2), (16, 2), (16, 11)])
sketch16.addConstraint([
    Sketcher.Constraint("Vertical", 0),
    Sketcher.Constraint("Horizontal", 1),
    Sketcher.Constraint("Vertical", 2),
    Sketcher.Constraint("Horizontal", 3),
    Sketcher.Constraint("Equal", 3, 0),
    Sketcher.Constraint("DistanceX", 1, 2, 1, 1, Q("0.375 in")),
    Sketcher.Constraint("DistanceY", -1, 1, 0, 2, Q("0.0625 in")),
    Sketcher.Constraint("DistanceX", -1, 1, 0, 2, 25.663183),
])
pad7 = body3.newObject("PartDesign::Pad", "Pad006")
pad7.Profile = sketch16
pad7.Length = Q("0.125 in")
pad7.Reversed = True
body4 = doc.addObject("PartDesign::Body", "Body003")

sketch17 = body4.newObject("Sketcher::SketchObject", "Sketch016")
sketch17.AttachmentSupport = (doc.getObject("XY_Plane003"), [""])
sketch17.MapMode = "FlatFace"
add_polygon(sketch17, [(-57, -54), (-57, -70), (-29, -70), (-29, -54)])
sketch17.addConstraint([
    Sketcher.Constraint("Vertical", 0),
    Sketcher.Constraint("Horizontal", 1),
    Sketcher.Constraint("Vertical", 2),
    Sketcher.Constraint("Horizontal", 3),
    Sketcher.Constraint("DistanceY", 0, 2, 0, 1, Q("0.65 in")),
    Sketcher.Constraint("DistanceX", 1, 1, 1, 2, Q("1.125 in")),
    Sketcher.Constraint("DistanceX", 0, 2, -1, 1, 57.323871),
    Sketcher.Constraint("DistanceY", 0, 2, -1, 1, 70.437763),
])
pad8 = body4.newObject("PartDesign::Pad", "Pad007")
pad8.Profile = sketch17
pad8.Length = Q("0.0625 in")
body5 = doc.addObject("PartDesign::Body", "Body004")

sketch18 = body5.newObject("Sketcher::SketchObject", "Sketch017")
sketch18.AttachmentSupport = (doc.getObject("XY_Plane004"), [""])
sketch18.MapMode = "FlatFace"
add_polygon(sketch18, [(-67, -34), (-67, -49), (-19.3, -49), (-19.3, -34), (-28.9, -34), (-28.9, -32.4), (-57.4, -32.4), (-57.4, -34)])
sketch18.addConstraint([
    Sketcher.Constraint("Vertical", 0),
    Sketcher.Constraint("Vertical", 2),
    Sketcher.Constraint("Horizontal", 3),
    Sketcher.Constraint("Vertical", 4),
    Sketcher.Constraint("Horizontal", 5),
    Sketcher.Constraint("Vertical", 6),
    Sketcher.Constraint("Horizontal", 7),
    Sketcher.Constraint("Horizontal", 3, 2, 6, 2),
    Sketcher.Constraint("Equal", 3, 7),
    Sketcher.Constraint("DistanceY", 0, 2, 0, 1, Q("0.59 in")),
    Sketcher.Constraint("DistanceX", 0, 2, 3, 2, Q("1.5 in")),
    Sketcher.Constraint("DistanceX", 3, 2, 3, 1, Q("0.375 in")),
    Sketcher.Constraint("DistanceY", 4, 1, 4, 2, Q("0.0625 in")),
    Sketcher.Constraint("DistanceY", 2, 1, 2, 2, 14.984152),
    Sketcher.Constraint("DistanceX", 0, 2, -1, 1, 66.955086),
    Sketcher.Constraint("DistanceY", 0, 2, -1, 1, 49.001984),
])
pad9 = body5.newObject("PartDesign::Pad", "Pad008")
pad9.Profile = sketch18
pad9.Length = Q("0.0625 in")

sketch19 = body5.newObject("Sketcher::SketchObject", "Sketch018")
sketch19.AttachmentSupport = (doc.getObject("XY_Plane004"), [""])
sketch19.MapMode = "FlatFace"
sketch19.AttachmentOffset = App.Placement(App.Vector(0, 0, 0.0625 * 25.4), App.Rotation())
add_polygon(sketch19, [(-57.4, -32.4), (-57.4, -34), (-28.9, -34), (-28.9, -32.4)])
sketch19.addConstraint([
    Sketcher.Constraint("Vertical", 0),
    Sketcher.Constraint("Horizontal", 1),
    Sketcher.Constraint("Vertical", 2),
    Sketcher.Constraint("Horizontal", 3),
    Sketcher.Constraint("DistanceX", 1, 1, 1, 2, Q("1.125 in")),
    Sketcher.Constraint("DistanceY", 0, 2, 0, 1, Q("0.0625 in")),
    Sketcher.Constraint("DistanceX", 0, 2, -1, 1, 57.430086),
    Sketcher.Constraint("DistanceY", 0, 2, -1, 1, 34.015984),
])
pad10 = body5.newObject("PartDesign::Pad", "Pad009")
pad10.Profile = sketch19
pad10.Length = Q("0.375 in")

sketch20 = body5.newObject("Sketcher::SketchObject", "Sketch019")
sketch20.AttachmentSupport = (doc.getObject("XZ_Plane004"), [""])
sketch20.MapMode = "FlatFace"
sketch20.AttachmentOffset = App.Placement(App.Vector(0, 0, 34.015984), App.Rotation())
add_polygon(sketch20, [(-57, 11), (-57, 2), (-51, 11)])
add_polygon(sketch20, [(-35, 11), (-29, 2), (-29, 11)])
sketch20.addConstraint([
    Sketcher.Constraint("Vertical", 0),
    Sketcher.Constraint("Horizontal", 2),
    Sketcher.Constraint("Vertical", 4),
    Sketcher.Constraint("Horizontal", 5),
    Sketcher.Constraint("Horizontal", 0, 2, 3, 2),
    Sketcher.Constraint("Horizontal", 2, 2, 4, 2),
    Sketcher.Constraint("Equal", 2, 5),
    Sketcher.Constraint("DistanceX", 2, 2, 2, 1, Q("0.25 in")),
    Sketcher.Constraint("DistanceY", 0, 2, 0, 1, Q("0.375 in")),
    Sketcher.Constraint("DistanceY", -1, 1, 0, 2, Q("0.0625 in")),
    Sketcher.Constraint("DistanceX", 1, 2, 3, 2, Q("0.875 in")),
    Sketcher.Constraint("DistanceX", 0, 2, -1, 1, 57.430086),
])
pocket10 = body5.newObject("PartDesign::Pocket", "Pocket009")
pocket10.Profile = sketch20
pocket10.Type = "ThroughAll"

doc.recompute()
